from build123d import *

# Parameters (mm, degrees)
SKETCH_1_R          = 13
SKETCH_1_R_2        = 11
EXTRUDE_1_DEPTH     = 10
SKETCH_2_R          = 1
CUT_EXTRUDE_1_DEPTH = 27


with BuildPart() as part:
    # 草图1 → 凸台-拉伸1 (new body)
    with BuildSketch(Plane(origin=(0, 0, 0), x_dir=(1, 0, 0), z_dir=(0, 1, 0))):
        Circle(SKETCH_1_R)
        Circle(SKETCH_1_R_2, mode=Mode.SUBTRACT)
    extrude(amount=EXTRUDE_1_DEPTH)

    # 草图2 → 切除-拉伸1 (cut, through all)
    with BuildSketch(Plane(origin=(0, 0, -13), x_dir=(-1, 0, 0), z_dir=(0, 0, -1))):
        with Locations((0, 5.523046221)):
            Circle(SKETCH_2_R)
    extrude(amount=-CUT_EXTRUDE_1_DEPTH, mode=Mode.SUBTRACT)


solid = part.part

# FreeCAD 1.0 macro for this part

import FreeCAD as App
import Part
import Sketcher
Q = App.Units.Quantity

doc = App.newDocument("Part")
params = doc.addObject("Spreadsheet::Sheet", "Params")
for row, (alias, value) in enumerate([
    ("sketch1_diameter", "26 mm"),
    ("sketch1_diameter2", "22 mm"),
    ("pad1_length", "10 mm"),
    ("sketch2_diameter", "2 mm"),
], start=1):
    params.set(f"A{row}", alias)
    params.set(f"B{row}", "=" + value)
    params.setAlias(f"B{row}", alias)

body = doc.addObject("PartDesign::Body", "Body")

# Sketch on XZ plane
sketch1 = body.newObject("Sketcher::SketchObject", "Sketch")
sketch1.AttachmentSupport = (doc.getObject("XZ_Plane"), [""])
sketch1.MapMode = "FlatFace"
sketch1.addGeometry(Part.Circle(App.Vector(0, 0, 0), App.Vector(0, 0, 1), 13), False)
sketch1.addGeometry(Part.Circle(App.Vector(0, 0, 0), App.Vector(0, 0, 1), 11), False)
sketch1.addConstraint(Sketcher.Constraint("Coincident", 0, 3, -1, 1))
sketch1.addConstraint(Sketcher.Constraint("Coincident", 1, 3, -1, 1))
sketch1.addConstraint(Sketcher.Constraint("Diameter", 0, Q("26 mm")))
sketch1.addConstraint(Sketcher.Constraint("Diameter", 1, Q("22 mm")))
sketch1.setExpression("Constraints[2]", "Params.sketch1_diameter")
sketch1.setExpression("Constraints[3]", "Params.sketch1_diameter2")
pad1 = body.newObject("PartDesign::Pad", "Pad")
pad1.Profile = sketch1
pad1.setExpression("Length", "Params.pad1_length")
pad1.Reversed = True

# Sketch on XY plane
sketch2 = body.newObject("Sketcher::SketchObject", "Sketch001")
sketch2.AttachmentSupport = (doc.getObject("XY_Plane"), [""])
sketch2.MapMode = "FlatFace"
sketch2.AttachmentOffset = App.Placement(App.Vector(0, 0, -13), App.Rotation())
sketch2.addGeometry(Part.Circle(App.Vector(0, 5.5, 0), App.Vector(0, 0, 1), 1), False)
sketch2.addConstraint(Sketcher.Constraint("PointOnObject", 0, 3, -2))
sketch2.addConstraint(Sketcher.Constraint("Diameter", 0, Q("2 mm")))
sketch2.addConstraint(Sketcher.Constraint("DistanceY", -1, 1, 0, 3, Q("5.523046 mm")))
sketch2.setExpression("Constraints[1]", "Params.sketch2_diameter")
pocket1 = body.newObject("PartDesign::Pocket", "Pocket")
pocket1.Profile = sketch2
pocket1.Type = "ThroughAll"
pocket1.Reversed = True

doc.recompute()
